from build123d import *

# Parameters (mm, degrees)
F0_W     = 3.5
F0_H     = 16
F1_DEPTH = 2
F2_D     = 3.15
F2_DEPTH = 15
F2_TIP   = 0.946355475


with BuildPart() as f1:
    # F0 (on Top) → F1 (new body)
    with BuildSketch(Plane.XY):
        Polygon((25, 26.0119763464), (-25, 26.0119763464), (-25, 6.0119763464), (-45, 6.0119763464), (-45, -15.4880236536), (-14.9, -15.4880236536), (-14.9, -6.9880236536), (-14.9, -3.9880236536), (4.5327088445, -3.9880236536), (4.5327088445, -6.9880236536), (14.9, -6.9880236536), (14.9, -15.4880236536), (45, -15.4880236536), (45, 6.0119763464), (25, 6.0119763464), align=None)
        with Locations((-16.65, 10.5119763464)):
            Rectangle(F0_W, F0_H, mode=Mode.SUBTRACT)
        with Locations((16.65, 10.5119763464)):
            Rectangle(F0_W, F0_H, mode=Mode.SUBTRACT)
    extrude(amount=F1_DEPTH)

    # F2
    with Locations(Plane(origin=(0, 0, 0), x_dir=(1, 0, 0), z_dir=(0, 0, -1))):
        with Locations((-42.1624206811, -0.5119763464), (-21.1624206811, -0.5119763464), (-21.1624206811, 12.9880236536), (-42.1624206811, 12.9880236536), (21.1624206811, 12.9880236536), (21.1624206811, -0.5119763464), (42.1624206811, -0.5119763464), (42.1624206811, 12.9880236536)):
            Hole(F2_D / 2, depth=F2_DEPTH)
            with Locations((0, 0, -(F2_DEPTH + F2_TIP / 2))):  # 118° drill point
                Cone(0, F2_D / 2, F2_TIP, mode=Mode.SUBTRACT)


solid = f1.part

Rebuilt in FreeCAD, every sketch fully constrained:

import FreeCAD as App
import Part
import Sketcher
Q = App.Units.Quantity


def add_polygon(sketch, points):
    """Adds a closed chain of lines whose ends are joined by coincident constraints."""
    first, n = sketch.GeometryCount, len(points)
    for a, b in zip(points, points[1:] + points[:1]):
        sketch.addGeometry(Part.LineSegment(App.Vector(*a, 0), App.Vector(*b, 0)), False)
    for i in range(n):
        sketch.addConstraint(Sketcher.Constraint("Coincident", first + i, 2, first + (i + 1) % n, 1))

doc = App.newDocument("Part")
params = doc.addObject("Spreadsheet::Sheet", "Params")
for row, (alias, value) in enumerate([
    ("sketch1_width", "50 mm"),
    ("sketch1_width2", "20 mm"),
    ("sketch1_height", "3 mm"),
    ("sketch1_height2", "16 mm"),
    ("sketch1_width3", "30.1 mm"),
    ("pad1_length", "2 mm"),
    ("sketch2_diameter", "3.15 mm"),
    ("hole_diameter", "3.15 mm"),
    ("hole_depth", "15 mm"),
], start=1):
    params.set(f"A{row}", alias)
    params.set(f"B{row}", "=" + value)
    params.setAlias(f"B{row}", alias)

body = doc.addObject("PartDesign::Body", "Body")

# Sketch on XY plane
sketch1 = doc.addObject("Sketcher::SketchObject", "Sketch")
body.addObject(sketch1)
sketch1.AttachmentSupport = (doc.XY_Plane, [""])
sketch1.MapMode = "FlatFace"
add_polygon(sketch1, [(25, 26.011976), (-25, 26.011976), (-25, 6.011976), (-45, 6.011976), (-45, -15.488024), (-14.9, -15.488024), (-14.9, -3.988024), (4.532709, -3.988024), (4.532709, -6.988024), (14.9, -6.988024), (14.9, -15.488024), (45, -15.488024), (45, 6.011976), (25, 6.011976)])  # lines 0-13
add_polygon(sketch1, [(-14.9, 2.511976), (-18.4, 2.511976), (-18.4, 18.511976), (-14.9, 18.511976)])  # lines 14-17
add_polygon(sketch1, [(18.4, 2.511976), (14.9, 2.511976), (14.9, 18.511976), (18.4, 18.511976)])  # lines 18-21
sketch1.addConstraint([
    Sketcher.Constraint("Horizontal", 0),
    Sketcher.Constraint("Vertical", 1),
    Sketcher.Constraint("Horizontal", 2),
    Sketcher.Constraint("Vertical", 3),
    Sketcher.Constraint("Horizontal", 4),
    Sketcher.Constraint("Vertical", 5),
    Sketcher.Constraint("Horizontal", 6),
    Sketcher.Constraint("Vertical", 7),
    Sketcher.Constraint("Horizontal", 8),
    Sketcher.Constraint("Vertical", 9),
    Sketcher.Constraint("Horizontal", 10),
    Sketcher.Constraint("Vertical", 11),
    Sketcher.Constraint("Horizontal", 12),
    Sketcher.Constraint("Vertical", 13),
    Sketcher.Constraint("Horizontal", 14),
    Sketcher.Constraint("Vertical", 15),
    Sketcher.Constraint("Horizontal", 16),
    Sketcher.Constraint("Vertical", 17),
    Sketcher.Constraint("Horizontal", 18),
    Sketcher.Constraint("Vertical", 19),
    Sketcher.Constraint("Horizontal", 20),
    Sketcher.Constraint("Vertical", 21),
    Sketcher.Constraint("Symmetric", 4, 2, 9, 2, -2),
    Sketcher.Constraint("Symmetric", 2, 2, 11, 2, -2),
    Sketcher.Constraint("Symmetric", 17, 2, 18, 2, -2),
    Sketcher.Constraint("Symmetric", 15, 2, 20, 2, -2),
    Sketcher.Constraint("Vertical", 5, 2, 16, 2),
    Sketcher.Constraint("Equal", 2, 12),
    Sketcher.Constraint("Equal", 12, 1),
    Sketcher.Constraint("DistanceX", 0, 2, 0, 1, Q("50 mm")),
    Sketcher.Constraint("DistanceX", 2, 2, 2, 1, Q("20 mm")),
    Sketcher.Constraint("DistanceY", 7, 2, 7, 1, Q("3 mm")),
    Sketcher.Constraint("DistanceY", 15, 1, 15, 2, Q("16 mm")),
    Sketcher.Constraint("DistanceX", 4, 1, 4, 2, Q("30.1 mm")),
    Sketcher.Constraint("DistanceX", 14, 2, 14, 1, Q("3.5 mm")),
    Sketcher.Constraint("DistanceY", 3, 2, 3, 1, Q("21.5 mm")),
    Sketcher.Constraint("DistanceY", 5, 1, 5, 2, Q("11.5 mm")),
    Sketcher.Constraint("DistanceY", 4, 2, 14, 2, Q("18 mm")),
    Sketcher.Constraint("DistanceX", 6, 1, 6, 2, Q("19.432709 mm")),
    Sketcher.Constraint("DistanceY", -1, 1, 0, 2, Q("26.011976 mm")),
])
sketch1.setExpression("Constraints[51]", "Params.sketch1_width")
sketch1.setExpression("Constraints[52]", "Params.sketch1_width2")
sketch1.setExpression("Constraints[53]", "Params.sketch1_height")
sketch1.setExpression("Constraints[54]", "Params.sketch1_height2")
sketch1.setExpression("Constraints[55]", "Params.sketch1_width3")
pad1 = doc.addObject("PartDesign::Pad", "Pad")
body.addObject(pad1)
pad1.Profile = sketch1
pad1.setExpression("Length", "Params.pad1_length")

# Sketch on XY plane
sketch2 = doc.addObject("Sketcher::SketchObject", "Sketch001")
body.addObject(sketch2)
sketch2.AttachmentSupport = (doc.XY_Plane, [""])
sketch2.MapMode = "FlatFace"
sketch2.addGeometry([
    Part.Circle(App.Vector(-42.162421, 0.511976, 0), App.Vector(0, 0, 1), 1.575),  # 0
    Part.Circle(App.Vector(-21.162421, 0.511976, 0), App.Vector(0, 0, 1), 1.575),  # 1
    Part.Circle(App.Vector(-21.162421, -12.988024, 0), App.Vector(0, 0, 1), 1.575),  # 2
    Part.Circle(App.Vector(-42.162421, -12.988024, 0), App.Vector(0, 0, 1), 1.575),  # 3
    Part.Circle(App.Vector(21.162421, -12.988024, 0), App.Vector(0, 0, 1), 1.575),  # 4
    Part.Circle(App.Vector(21.162421, 0.511976, 0), App.Vector(0, 0, 1), 1.575),  # 5
    Part.Circle(App.Vector(42.162421, 0.511976, 0), App.Vector(0, 0, 1), 1.575),  # 6
    Part.Circle(App.Vector(42.162421, -12.988024, 0), App.Vector(0, 0, 1), 1.575),  # 7
], False)
sketch2.addConstraint([
    Sketcher.Constraint("Equal", 0, 1),
    Sketcher.Constraint("Equal", 1, 2),
    Sketcher.Constraint("Equal", 2, 3),
    Sketcher.Constraint("Equal", 3, 4),
    Sketcher.Constraint("Equal", 4, 5),
    Sketcher.Constraint("Equal", 5, 6),
    Sketcher.Constraint("Equal", 6, 7),
    Sketcher.Constraint("Symmetric", 2, 3, 4, 3, -2),
    Sketcher.Constraint("Symmetric", 1, 3, 5, 3, -2),
    Sketcher.Constraint("Symmetric", 0, 3, 6, 3, -2),
    Sketcher.Constraint("Symmetric", 3, 3, 7, 3, -2),
    Sketcher.Constraint("Horizontal", 0, 3, 1, 3),
    Sketcher.Constraint("Horizontal", 2, 3, 3, 3),
    Sketcher.Constraint("Vertical", 1, 3, 2, 3),
    Sketcher.Constraint("Vertical", 0, 3, 3, 3),
    Sketcher.Constraint("Diameter", 0, Q("3.15 mm")),
    Sketcher.Constraint("DistanceX", 0, 3, 1, 3, Q("21 mm")),
    Sketcher.Constraint("DistanceY", 2, 3, 1, 3, Q("13.5 mm")),
    Sketcher.Constraint("DistanceX", 0, 3, -1, 1, Q("42.162421 mm")),
    Sketcher.Constraint("DistanceY", -1, 1, 0, 3, Q("0.511976 mm")),
])
sketch2.setExpression("Constraints[15]", "Params.sketch2_diameter")
doc.recompute()
hole = doc.addObject("PartDesign::Hole", "Hole")
body.addObject(hole)
hole.Profile = sketch2
hole.ThreadType = "None"
hole.setExpression("Diameter", "Params.hole_diameter")
hole.DepthType = "Dimension"
hole.setExpression("Depth", "Params.hole_depth")
hole.DrillPoint = "Angled"
hole.DrillPointAngle = 118
hole.Reversed = True

doc.recompute()
